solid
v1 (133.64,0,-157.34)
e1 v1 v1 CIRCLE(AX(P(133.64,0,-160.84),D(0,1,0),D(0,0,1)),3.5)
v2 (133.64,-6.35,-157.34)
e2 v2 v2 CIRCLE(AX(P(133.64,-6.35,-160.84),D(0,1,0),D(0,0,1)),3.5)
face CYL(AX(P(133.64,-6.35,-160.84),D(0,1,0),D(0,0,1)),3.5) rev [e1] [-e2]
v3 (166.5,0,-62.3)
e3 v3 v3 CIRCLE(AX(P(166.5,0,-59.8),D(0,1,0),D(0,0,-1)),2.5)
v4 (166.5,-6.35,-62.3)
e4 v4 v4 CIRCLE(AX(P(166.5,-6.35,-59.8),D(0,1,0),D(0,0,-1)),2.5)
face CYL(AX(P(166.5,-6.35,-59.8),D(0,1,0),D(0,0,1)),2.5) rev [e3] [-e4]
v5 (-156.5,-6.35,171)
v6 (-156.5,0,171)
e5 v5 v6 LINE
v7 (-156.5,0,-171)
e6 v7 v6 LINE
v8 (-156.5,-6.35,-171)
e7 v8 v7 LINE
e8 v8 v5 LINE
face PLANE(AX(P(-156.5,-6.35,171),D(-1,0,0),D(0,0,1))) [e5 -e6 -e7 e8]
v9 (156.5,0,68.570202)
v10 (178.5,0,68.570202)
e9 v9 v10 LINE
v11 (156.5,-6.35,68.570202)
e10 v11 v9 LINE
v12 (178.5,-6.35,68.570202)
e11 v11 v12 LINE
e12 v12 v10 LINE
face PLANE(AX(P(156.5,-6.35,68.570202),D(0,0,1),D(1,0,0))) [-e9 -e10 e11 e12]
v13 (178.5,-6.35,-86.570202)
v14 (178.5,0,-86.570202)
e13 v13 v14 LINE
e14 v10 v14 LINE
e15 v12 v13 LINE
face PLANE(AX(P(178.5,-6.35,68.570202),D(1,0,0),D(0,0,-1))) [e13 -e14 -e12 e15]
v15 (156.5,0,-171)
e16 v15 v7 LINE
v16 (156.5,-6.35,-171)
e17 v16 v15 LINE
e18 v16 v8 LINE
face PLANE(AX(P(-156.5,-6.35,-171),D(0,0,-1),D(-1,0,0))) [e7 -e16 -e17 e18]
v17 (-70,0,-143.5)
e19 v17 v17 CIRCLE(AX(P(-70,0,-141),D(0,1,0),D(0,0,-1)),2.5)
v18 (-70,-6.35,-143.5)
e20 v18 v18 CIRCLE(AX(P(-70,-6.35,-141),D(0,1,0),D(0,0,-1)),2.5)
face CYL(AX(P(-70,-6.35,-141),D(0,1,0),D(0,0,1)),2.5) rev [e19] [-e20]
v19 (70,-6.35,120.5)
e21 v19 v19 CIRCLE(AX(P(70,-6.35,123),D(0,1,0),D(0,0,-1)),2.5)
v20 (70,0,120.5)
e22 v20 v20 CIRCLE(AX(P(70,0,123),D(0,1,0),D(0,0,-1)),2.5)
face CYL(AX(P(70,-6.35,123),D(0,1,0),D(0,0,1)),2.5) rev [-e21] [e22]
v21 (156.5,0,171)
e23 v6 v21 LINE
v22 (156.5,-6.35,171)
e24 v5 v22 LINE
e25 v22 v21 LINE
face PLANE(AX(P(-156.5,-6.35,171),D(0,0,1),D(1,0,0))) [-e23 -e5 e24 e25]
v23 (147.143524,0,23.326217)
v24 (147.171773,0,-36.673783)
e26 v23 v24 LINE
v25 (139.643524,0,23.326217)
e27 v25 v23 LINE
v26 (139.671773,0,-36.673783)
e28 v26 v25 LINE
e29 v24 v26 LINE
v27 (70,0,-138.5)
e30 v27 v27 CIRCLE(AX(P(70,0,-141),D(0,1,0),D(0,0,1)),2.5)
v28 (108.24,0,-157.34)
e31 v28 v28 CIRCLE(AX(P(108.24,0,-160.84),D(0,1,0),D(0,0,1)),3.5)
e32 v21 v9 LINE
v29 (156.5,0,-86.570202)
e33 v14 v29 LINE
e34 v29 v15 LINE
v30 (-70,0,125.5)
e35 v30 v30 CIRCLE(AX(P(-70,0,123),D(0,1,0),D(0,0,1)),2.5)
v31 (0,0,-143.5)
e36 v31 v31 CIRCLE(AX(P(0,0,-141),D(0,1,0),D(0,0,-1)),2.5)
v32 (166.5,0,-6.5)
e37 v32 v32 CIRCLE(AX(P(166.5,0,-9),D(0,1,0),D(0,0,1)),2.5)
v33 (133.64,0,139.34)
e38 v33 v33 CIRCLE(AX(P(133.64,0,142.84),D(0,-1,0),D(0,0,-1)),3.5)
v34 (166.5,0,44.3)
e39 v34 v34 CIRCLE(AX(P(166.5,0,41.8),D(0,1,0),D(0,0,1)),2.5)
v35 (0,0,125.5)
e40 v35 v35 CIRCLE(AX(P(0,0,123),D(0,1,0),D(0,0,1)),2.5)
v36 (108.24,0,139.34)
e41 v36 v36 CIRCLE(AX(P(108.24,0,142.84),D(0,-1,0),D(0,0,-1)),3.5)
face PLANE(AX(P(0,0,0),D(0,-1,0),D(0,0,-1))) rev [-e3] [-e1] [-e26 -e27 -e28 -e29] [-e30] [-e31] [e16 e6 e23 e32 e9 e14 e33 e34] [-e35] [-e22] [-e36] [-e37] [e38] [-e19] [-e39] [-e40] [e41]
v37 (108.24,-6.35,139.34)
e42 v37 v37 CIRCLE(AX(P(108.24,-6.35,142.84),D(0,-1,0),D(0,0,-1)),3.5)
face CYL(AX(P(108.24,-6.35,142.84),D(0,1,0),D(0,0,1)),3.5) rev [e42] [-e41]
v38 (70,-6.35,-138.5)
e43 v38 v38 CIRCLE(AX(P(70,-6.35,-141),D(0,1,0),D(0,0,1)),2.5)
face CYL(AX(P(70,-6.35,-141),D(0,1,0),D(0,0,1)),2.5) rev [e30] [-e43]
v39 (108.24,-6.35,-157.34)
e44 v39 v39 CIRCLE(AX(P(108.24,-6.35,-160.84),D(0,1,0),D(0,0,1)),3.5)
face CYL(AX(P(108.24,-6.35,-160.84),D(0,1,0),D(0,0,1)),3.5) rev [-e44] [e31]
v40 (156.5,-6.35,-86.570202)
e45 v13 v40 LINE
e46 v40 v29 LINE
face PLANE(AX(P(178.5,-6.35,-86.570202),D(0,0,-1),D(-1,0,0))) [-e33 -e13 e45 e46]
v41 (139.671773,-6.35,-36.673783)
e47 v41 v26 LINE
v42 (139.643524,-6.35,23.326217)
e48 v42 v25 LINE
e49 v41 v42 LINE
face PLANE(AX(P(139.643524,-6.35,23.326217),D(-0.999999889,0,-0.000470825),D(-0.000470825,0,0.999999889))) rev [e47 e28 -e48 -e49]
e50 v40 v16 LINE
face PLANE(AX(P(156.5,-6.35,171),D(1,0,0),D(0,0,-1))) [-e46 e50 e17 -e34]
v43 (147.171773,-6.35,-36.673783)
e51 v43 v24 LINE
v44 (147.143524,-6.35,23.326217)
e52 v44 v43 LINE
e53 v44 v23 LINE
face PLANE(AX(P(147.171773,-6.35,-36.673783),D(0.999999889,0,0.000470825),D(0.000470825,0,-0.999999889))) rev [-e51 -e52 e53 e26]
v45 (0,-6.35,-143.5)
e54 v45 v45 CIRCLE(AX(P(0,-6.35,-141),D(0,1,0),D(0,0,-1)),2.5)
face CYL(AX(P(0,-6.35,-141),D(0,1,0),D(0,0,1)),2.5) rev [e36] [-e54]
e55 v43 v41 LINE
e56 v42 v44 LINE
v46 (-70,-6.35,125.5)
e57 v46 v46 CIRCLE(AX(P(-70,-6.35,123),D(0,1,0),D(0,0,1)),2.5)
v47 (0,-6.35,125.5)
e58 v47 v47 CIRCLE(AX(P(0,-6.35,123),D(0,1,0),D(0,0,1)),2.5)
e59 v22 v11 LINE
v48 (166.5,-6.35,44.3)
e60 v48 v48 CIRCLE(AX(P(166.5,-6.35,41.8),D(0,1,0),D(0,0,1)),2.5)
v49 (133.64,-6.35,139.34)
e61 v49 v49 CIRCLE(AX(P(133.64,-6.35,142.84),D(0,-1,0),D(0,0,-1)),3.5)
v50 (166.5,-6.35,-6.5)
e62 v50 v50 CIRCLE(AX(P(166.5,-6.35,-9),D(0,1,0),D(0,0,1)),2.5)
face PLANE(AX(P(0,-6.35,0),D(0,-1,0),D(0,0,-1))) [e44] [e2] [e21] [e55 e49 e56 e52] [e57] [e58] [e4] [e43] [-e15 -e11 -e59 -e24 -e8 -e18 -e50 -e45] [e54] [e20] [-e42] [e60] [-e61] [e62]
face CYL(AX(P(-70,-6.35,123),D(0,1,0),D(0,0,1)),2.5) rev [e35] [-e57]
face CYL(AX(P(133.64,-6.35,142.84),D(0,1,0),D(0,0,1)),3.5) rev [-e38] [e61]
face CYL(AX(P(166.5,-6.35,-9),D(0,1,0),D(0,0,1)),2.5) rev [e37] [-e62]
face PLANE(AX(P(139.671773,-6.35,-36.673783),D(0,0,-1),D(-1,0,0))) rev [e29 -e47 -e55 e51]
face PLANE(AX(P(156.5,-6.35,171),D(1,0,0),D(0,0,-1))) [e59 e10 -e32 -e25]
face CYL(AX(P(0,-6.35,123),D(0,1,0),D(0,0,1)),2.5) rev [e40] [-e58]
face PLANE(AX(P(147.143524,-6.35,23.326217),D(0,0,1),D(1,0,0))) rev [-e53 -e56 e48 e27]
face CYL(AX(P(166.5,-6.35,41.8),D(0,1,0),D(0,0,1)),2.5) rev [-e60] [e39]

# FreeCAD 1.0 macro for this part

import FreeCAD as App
import Part
import Sketcher
from FreeCAD import Vector
Q = App.Units.Quantity


def add_polygon(sketch, points):
    """Adds a closed chain of lines whose ends are joined by coincident constraints."""
    first, n = sketch.GeometryCount, len(points)
    for a, b in zip(points, points[1:] + points[:1]):
        sketch.addGeometry(Part.LineSegment(App.Vector(*a, 0), App.Vector(*b, 0)), False)
    for i in range(n):
        sketch.addConstraint(Sketcher.Constraint("Coincident", first + i, 2, first + (i + 1) % n, 1))

doc = App.newDocument("Part")
params = doc.addObject("Spreadsheet::Sheet", "Params")
for row, (alias, value) in enumerate([
    ("sketch1_width", "313 mm"),
    ("sketch1_height", "342 mm"),
    ("pad1_length", "6.35 mm"),
    ("sketch2_diameter", "5 mm"),
    ("sketch2_width", "22 mm"),
    ("pad2_length", "6.35 mm"),
    ("sketch3_diameter", "5 mm"),
    ("sketch4_diameter", "7 mm"),
    ("sketch5_width", "7.5 mm"),
], start=1):
    params.set(f"A{row}", alias)
    params.set(f"B{row}", "=" + value)
    params.setAlias(f"B{row}", alias)

body = doc.addObject("PartDesign::Body", "Body")

sketch1 = doc.addObject("Sketcher::SketchObject", "Sketch")
body.addObject(sketch1)
sketch1.AttachmentSupport = (doc.XZ_Plane, [""])
sketch1.MapMode = "FlatFace"
add_polygon(sketch1, [(-156, -171), (-156, 171), (156, 171), (156, -171)])
sketch1.addConstraint([
    Sketcher.Constraint("Vertical", 0),
    Sketcher.Constraint("Horizontal", 1),
    Sketcher.Constraint("Vertical", 2),
    Sketcher.Constraint("Horizontal", 3),
    Sketcher.Constraint("Symmetric", 0, 2, 2, 2, -1, 1),
    Sketcher.Constraint("DistanceX", 1, 1, 1, 2, Q("313 mm")),
    Sketcher.Constraint("DistanceY", 0, 1, 0, 2, Q("342 mm")),
])
sketch1.setExpression("Constraints[9]", "Params.sketch1_width")
sketch1.setExpression("Constraints[10]", "Params.sketch1_height")
pad1 = doc.addObject("PartDesign::Pad", "Pad")
body.addObject(pad1)
pad1.Profile = sketch1
pad1.setExpression("Length", "Params.pad1_length")

sketch2 = doc.addObject("Sketcher::SketchObject", "Sketch001")
body.addObject(sketch2)
sketch2.AttachmentSupport = (doc.XZ_Plane, [""])
sketch2.MapMode = "FlatFace"
add_polygon(sketch2, [(156.5, -86.6), (156.5, 68.6), (178.5, 68.6), (178.5, -86.6)])
sketch2.addGeometry(Part.Circle(Vector(166.5, 41.8, 0), Vector(0, 0, 1), 2.5), False)
sketch2.addGeometry(Part.Circle(Vector(166.5, -9, 0), Vector(0, 0, 1), 2.5), False)
sketch2.addGeometry(Part.Circle(Vector(166.5, -59.8, 0), Vector(0, 0, 1), 2.5), False)
sketch2.addConstraint([
    Sketcher.Constraint("Vertical", 0),
    Sketcher.Constraint("Horizontal", 1),
    Sketcher.Constraint("Vertical", 2),
    Sketcher.Constraint("Horizontal", 3),
    Sketcher.Constraint("Equal", 4, 5),
    Sketcher.Constraint("Equal", 5, 6),
    Sketcher.Constraint("Vertical", 4, 3, 5, 3),
    Sketcher.Constraint("Vertical", 5, 3, 6, 3),
    Sketcher.Constraint("Diameter", 4, Q("5 mm")),
    Sketcher.Constraint("DistanceX", 1, 1, 1, 2, Q("22 mm")),
    Sketcher.Constraint("DistanceY", 5, 3, -1, 1, Q("9 mm")),
    Sketcher.Constraint("DistanceX", 0, 2, 4, 3, Q("10 mm")),
    Sketcher.Constraint("DistanceX", -1, 1, 4, 3, Q("166.5 mm")),
    Sketcher.Constraint("DistanceY", -1, 1, 4, 3, Q("41.8 mm")),
    Sketcher.Constraint("DistanceY", 6, 3, -1, 1, Q("59.8 mm")),
    Sketcher.Constraint("DistanceY", -1, 1, 0, 2, Q("68.570202 mm")),
    Sketcher.Constraint("DistanceY", 2, 2, -1, 1, Q("86.570202 mm")),
])
sketch2.setExpression("Constraints[12]", "Params.sketch2_diameter")
sketch2.setExpression("Constraints[13]", "Params.sketch2_width")
pad2 = doc.addObject("PartDesign::Pad", "Pad001")
body.addObject(pad2)
pad2.Profile = sketch2
pad2.setExpression("Length", "Params.pad2_length")

sketch3 = doc.addObject("Sketcher::SketchObject", "Sketch002")
body.addObject(sketch3)
sketch3.AttachmentSupport = (doc.XZ_Plane, [""])
sketch3.MapMode = "FlatFace"
sketch3.addGeometry([
    Part.Circle(Vector(0, 123, 0), Vector(0, 0, 1), 2.5),
    Part.Circle(Vector(-70, 123, 0), Vector(0, 0, 1), 2.5),
    Part.Circle(Vector(70, 123, 0), Vector(0, 0, 1), 2.5),
    Part.Circle(Vector(-70, -141, 0), Vector(0, 0, 1), 2.5),
    Part.Circle(Vector(0, -141, 0), Vector(0, 0, 1), 2.5),
    Part.Circle(Vector(70, -141, 0), Vector(0, 0, 1), 2.5),
], False)
sketch3.addConstraint([
    Sketcher.Constraint("Equal", 0, 1),
    Sketcher.Constraint("Equal", 1, 2),
    Sketcher.Constraint("Equal", 2, 3),
    Sketcher.Constraint("Equal", 3, 4),
    Sketcher.Constraint("Equal", 4, 5),
    Sketcher.Constraint("Symmetric", 1, 3, 2, 3, -2),
    Sketcher.Constraint("Symmetric", 3, 3, 5, 3, -2),
    Sketcher.Constraint("PointOnObject", 0, 3, -2),
    Sketcher.Constraint("PointOnObject", 4, 3, -2),
    Sketcher.Constraint("Horizontal", 0, 3, 1, 3),
    Sketcher.Constraint("Horizontal", 3, 3, 4, 3),
    Sketcher.Constraint("Vertical", 1, 3, 3, 3),
    Sketcher.Constraint("Diameter", 0, Q("5 mm")),
    Sketcher.Constraint("DistanceY", -1, 1, 0, 3, Q("123 mm")),
    Sketcher.Constraint("DistanceX", 1, 3, -1, 1, Q("70 mm")),
    Sketcher.Constraint("DistanceY", 3, 3, -1, 1, Q("141 mm")),
])
sketch3.setExpression("Constraints[12]", "Params.sketch3_diameter")
pocket1 = doc.addObject("PartDesign::Pocket", "Pocket")
body.addObject(pocket1)
pocket1.Profile = sketch3
pocket1.Type = "ThroughAll"
pocket1.Reversed = True

sketch4 = doc.addObject("Sketcher::SketchObject", "Sketch003")
body.addObject(sketch4)
sketch4.AttachmentSupport = (doc.XZ_Plane, [""])
sketch4.MapMode = "FlatFace"
sketch4.addGeometry([
    Part.Circle(Vector(133.6, -160.8, 0), Vector(0, 0, 1), 3.5),
    Part.Circle(Vector(108.2, -160.8, 0), Vector(0, 0, 1), 3.5),
], False)
sketch4.addConstraint([
    Sketcher.Constraint("Equal", 0, 1),
    Sketcher.Constraint("Horizontal", 0, 3, 1, 3),
    Sketcher.Constraint("Diameter", 0, Q("7 mm")),
    Sketcher.Constraint("DistanceX", 1, 3, 0, 3, Q("25.4 mm")),
    Sketcher.Constraint("DistanceX", -1, 1, 0, 3, Q("133.64 mm")),
    Sketcher.Constraint("DistanceY", 0, 3, -1, 1, Q("160.84 mm")),
])
sketch4.setExpression("Constraints[2]", "Params.sketch4_diameter")
pocket2 = doc.addObject("PartDesign::Pocket", "Pocket001")
body.addObject(pocket2)
pocket2.Profile = sketch4
pocket2.Type = "ThroughAll"
pocket2.Reversed = True
doc.recompute()

datumplane = doc.addObject("PartDesign::Plane", "DatumPlane")
body.addObject(datumplane)
datumplane.AttachmentSupport = (doc.XY_Plane, [""])
datumplane.MapMode = "FlatFace"
datumplane.AttachmentOffset = App.Placement(Vector(0, 0, -9), App.Rotation())
mirrored = doc.addObject("PartDesign::Mirrored", "Mirrored")
body.addObject(mirrored)
mirrored.Originals = [pocket2]
mirrored.MirrorPlane = (datumplane, [""])
body.Tip = mirrored

sketch5 = doc.addObject("Sketcher::SketchObject", "Sketch004")
body.addObject(sketch5)
sketch5.AttachmentSupport = (doc.XZ_Plane, [""])
sketch5.MapMode = "FlatFace"
add_polygon(sketch5, [(147, -37), (140, -37), (140, 23), (147, 23)])
sketch5.addConstraint([
    Sketcher.Constraint("Horizontal", 0),
    Sketcher.Constraint("Horizontal", 2),
    Sketcher.Constraint("Parallel", 1, 3),
    Sketcher.Constraint("DistanceX", 0, 2, 0, 1, Q("7.5 mm")),
    Sketcher.Constraint("DistanceY", 0, 2, 1, 2, Q("60 mm")),
    Sketcher.Constraint("DistanceX", 1, 2, 0, 2, Q("0.02825 mm")),
    Sketcher.Constraint("DistanceX", -1, 1, 0, 2, Q("139.671773 mm")),
    Sketcher.Constraint("DistanceY", 0, 2, -1, 1, Q("36.673783 mm")),
])
sketch5.setExpression("Constraints[7]", "Params.sketch5_width")
pocket3 = doc.addObject("PartDesign::Pocket", "Pocket002")
body.addObject(pocket3)
pocket3.Profile = sketch5
pocket3.Type = "ThroughAll"
pocket3.Reversed = True

doc.recompute()
